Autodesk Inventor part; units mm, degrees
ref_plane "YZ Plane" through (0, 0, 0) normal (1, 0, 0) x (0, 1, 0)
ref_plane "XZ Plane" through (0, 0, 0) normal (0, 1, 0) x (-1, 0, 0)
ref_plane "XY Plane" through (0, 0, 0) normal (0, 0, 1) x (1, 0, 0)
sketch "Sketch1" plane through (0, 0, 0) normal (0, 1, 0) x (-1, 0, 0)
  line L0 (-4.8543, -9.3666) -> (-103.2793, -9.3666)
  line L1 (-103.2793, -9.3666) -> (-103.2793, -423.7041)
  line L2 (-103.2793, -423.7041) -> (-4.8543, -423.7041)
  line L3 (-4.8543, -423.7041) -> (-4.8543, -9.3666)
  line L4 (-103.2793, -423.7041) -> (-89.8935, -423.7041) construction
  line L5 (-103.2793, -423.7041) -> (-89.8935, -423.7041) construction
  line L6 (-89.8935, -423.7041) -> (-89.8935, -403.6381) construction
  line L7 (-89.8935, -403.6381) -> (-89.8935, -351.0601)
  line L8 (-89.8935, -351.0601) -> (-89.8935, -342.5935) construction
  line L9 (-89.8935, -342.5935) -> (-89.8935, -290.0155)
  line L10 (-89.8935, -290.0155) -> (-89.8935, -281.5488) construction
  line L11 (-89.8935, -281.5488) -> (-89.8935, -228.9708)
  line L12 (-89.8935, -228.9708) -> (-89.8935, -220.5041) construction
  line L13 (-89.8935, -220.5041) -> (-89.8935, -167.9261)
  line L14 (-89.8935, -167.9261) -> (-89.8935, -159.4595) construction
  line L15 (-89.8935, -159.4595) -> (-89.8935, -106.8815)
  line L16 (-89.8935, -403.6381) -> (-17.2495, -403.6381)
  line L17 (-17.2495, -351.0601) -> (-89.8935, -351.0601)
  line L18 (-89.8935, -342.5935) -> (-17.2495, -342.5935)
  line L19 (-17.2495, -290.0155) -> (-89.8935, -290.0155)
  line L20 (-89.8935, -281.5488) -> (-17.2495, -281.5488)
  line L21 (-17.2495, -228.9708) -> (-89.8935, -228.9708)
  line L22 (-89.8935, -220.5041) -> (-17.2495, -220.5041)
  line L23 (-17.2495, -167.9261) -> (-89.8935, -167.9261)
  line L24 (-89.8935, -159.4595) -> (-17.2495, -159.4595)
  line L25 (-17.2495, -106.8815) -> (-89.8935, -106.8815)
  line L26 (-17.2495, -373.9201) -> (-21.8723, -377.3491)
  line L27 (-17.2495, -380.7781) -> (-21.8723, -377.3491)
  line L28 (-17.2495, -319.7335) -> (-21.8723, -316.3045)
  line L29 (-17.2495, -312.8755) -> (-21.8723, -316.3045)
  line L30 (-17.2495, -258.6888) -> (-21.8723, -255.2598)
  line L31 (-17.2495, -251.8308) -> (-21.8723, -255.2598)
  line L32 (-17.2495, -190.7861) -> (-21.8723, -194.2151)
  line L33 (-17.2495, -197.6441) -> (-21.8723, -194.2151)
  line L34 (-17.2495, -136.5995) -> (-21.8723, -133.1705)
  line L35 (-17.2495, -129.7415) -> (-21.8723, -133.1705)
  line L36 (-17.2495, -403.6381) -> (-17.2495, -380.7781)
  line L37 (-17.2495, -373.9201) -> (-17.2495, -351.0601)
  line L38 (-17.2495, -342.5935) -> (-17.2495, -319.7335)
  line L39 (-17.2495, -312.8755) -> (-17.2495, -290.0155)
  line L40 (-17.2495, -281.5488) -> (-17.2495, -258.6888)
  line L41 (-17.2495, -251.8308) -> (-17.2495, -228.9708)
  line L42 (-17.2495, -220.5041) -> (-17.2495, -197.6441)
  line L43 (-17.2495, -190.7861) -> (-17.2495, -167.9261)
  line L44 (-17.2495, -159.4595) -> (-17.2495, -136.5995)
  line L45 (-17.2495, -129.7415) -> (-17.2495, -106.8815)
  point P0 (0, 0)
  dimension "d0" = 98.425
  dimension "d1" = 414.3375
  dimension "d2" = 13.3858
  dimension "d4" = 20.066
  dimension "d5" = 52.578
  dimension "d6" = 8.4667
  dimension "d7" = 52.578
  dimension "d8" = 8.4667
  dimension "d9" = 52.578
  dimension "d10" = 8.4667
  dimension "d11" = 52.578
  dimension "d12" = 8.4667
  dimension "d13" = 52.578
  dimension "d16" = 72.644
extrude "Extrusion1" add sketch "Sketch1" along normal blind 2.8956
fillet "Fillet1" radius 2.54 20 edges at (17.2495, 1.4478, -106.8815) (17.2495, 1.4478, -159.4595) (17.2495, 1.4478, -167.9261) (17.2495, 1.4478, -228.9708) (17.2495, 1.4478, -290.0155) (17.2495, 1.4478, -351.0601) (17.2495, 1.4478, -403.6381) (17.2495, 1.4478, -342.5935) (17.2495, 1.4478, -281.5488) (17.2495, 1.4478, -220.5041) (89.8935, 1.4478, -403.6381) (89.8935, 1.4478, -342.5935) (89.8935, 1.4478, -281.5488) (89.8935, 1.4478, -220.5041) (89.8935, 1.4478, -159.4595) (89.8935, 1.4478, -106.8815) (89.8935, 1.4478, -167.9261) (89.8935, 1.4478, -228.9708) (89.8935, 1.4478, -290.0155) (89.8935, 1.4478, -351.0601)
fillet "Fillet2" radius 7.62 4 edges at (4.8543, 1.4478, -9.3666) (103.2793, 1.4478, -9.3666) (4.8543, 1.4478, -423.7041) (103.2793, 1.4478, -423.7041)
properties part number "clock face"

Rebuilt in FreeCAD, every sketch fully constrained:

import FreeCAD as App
import Part
import Sketcher
Q = App.Units.Quantity


def edges_at(feature, points):
    """Names of the edges that pass closest to the given points."""
    edges = feature.Shape.Edges
    near = lambda p: min(range(len(edges)), key=lambda i: edges[i].distToShape(Part.Vertex(*p))[0])
    return sorted({f"Edge{near(p) + 1}" for p in points})


def add_polygon(sketch, points):
    """Adds a closed chain of lines whose ends are joined by coincident constraints."""
    first, n = sketch.GeometryCount, len(points)
    for a, b in zip(points, points[1:] + points[:1]):
        sketch.addGeometry(Part.LineSegment(App.Vector(*a, 0), App.Vector(*b, 0)), False)
    for i in range(n):
        sketch.addConstraint(Sketcher.Constraint("Coincident", first + i, 2, first + (i + 1) % n, 1))

doc = App.newDocument("Part")
params = doc.addObject("Spreadsheet::Sheet", "Params")
for row, (alias, value) in enumerate([
    ("sketch1_width", "2.86 in"),
    ("sketch1_height", "2.07 in"),
    ("sketch1_width2", "3.875 in"),
    ("sketch1_height2", "16.3125 in"),
    ("sketch1_height3", "0.9 in"),
    ("pad1_length", "0.114 in"),
    ("fillet_radius", "0.1 in"),
    ("fillet2_radius", "0.3 in"),
], start=1):
    params.set(f"A{row}", alias)
    params.set(f"B{row}", "=" + value)
    params.setAlias(f"B{row}", alias)

body = doc.addObject("PartDesign::Body", "Body")

# Sketch on XZ plane
sketch1 = body.newObject("Sketcher::SketchObject", "Sketch")
sketch1.AttachmentSupport = (doc.getObject("XZ_Plane"), [""])
sketch1.MapMode = "FlatFace"
add_polygon(sketch1, [(5, -424), (5, -9), (103, -9), (103, -424)])  # lines 0-3
add_polygon(sketch1, [(17, -404), (90, -404), (90, -351), (17, -351), (17, -374), (22, -377), (17, -381)])  # lines 4-10
add_polygon(sketch1, [(17, -343), (90, -343), (90, -290), (17, -290), (17, -313), (22, -316), (17, -320)])  # lines 11-17
add_polygon(sketch1, [(17, -282), (90, -282), (90, -229), (17, -229), (17, -252), (22, -255), (17, -259)])  # lines 18-24
add_polygon(sketch1, [(17, -221), (90, -221), (90, -168), (17, -168), (17, -191), (22, -194), (17, -198)])  # lines 25-31
add_polygon(sketch1, [(17, -159), (90, -159), (90, -107), (17, -107), (17, -130), (22, -133), (17, -137)])  # lines 32-38
sketch1.addConstraint([
    Sketcher.Constraint("Vertical", 0),
    Sketcher.Constraint("Horizontal", 1),
    Sketcher.Constraint("Vertical", 2),
    Sketcher.Constraint("Horizontal", 3),
    Sketcher.Constraint("Horizontal", 4),
    Sketcher.Constraint("Vertical", 5),
    Sketcher.Constraint("Horizontal", 6),
    Sketcher.Constraint("Vertical", 7),
    Sketcher.Constraint("Vertical", 10),
    Sketcher.Constraint("Horizontal", 11),
    Sketcher.Constraint("Vertical", 12),
    Sketcher.Constraint("Horizontal", 13),
    Sketcher.Constraint("Vertical", 14),
    Sketcher.Constraint("Vertical", 17),
    Sketcher.Constraint("Horizontal", 18),
    Sketcher.Constraint("Vertical", 19),
    Sketcher.Constraint("Horizontal", 20),
    Sketcher.Constraint("Vertical", 21),
    Sketcher.Constraint("Vertical", 24),
    Sketcher.Constraint("Horizontal", 25),
    Sketcher.Constraint("Vertical", 26),
    Sketcher.Constraint("Horizontal", 27),
    Sketcher.Constraint("Vertical", 28),
    Sketcher.Constraint("Vertical", 31),
    Sketcher.Constraint("Horizontal", 32),
    Sketcher.Constraint("Vertical", 33),
    Sketcher.Constraint("Horizontal", 34),
    Sketcher.Constraint("Vertical", 35),
    Sketcher.Constraint("Vertical", 38),
    Sketcher.Constraint("Parallel", 8, 15),
    Sketcher.Constraint("Parallel", 9, 16),
    Sketcher.Constraint("Parallel", 15, 22),
    Sketcher.Constraint("Parallel", 16, 23),
    Sketcher.Constraint("Parallel", 22, 29),
    Sketcher.Constraint("Parallel", 23, 30),
    Sketcher.Constraint("Parallel", 29, 36),
    Sketcher.Constraint("Parallel", 30, 37),
    Sketcher.Constraint("Vertical", 7, 2, 9, 2),
    Sketcher.Constraint("Vertical", 5, 2, 11, 2),
    Sketcher.Constraint("Vertical", 10, 2, 13, 2),
    Sketcher.Constraint("Vertical", 8, 2, 15, 2),
    Sketcher.Constraint("Vertical", 14, 2, 16, 2),
    Sketcher.Constraint("Vertical", 12, 2, 18, 2),
    Sketcher.Constraint("Vertical", 17, 2, 20, 2),
    Sketcher.Constraint("Vertical", 15, 2, 22, 2),
    Sketcher.Constraint("Vertical", 21, 2, 23, 2),
    Sketcher.Constraint("Vertical", 19, 2, 25, 2),
    Sketcher.Constraint("Vertical", 24, 2, 27, 2),
    Sketcher.Constraint("Vertical", 22, 2, 29, 2),
    Sketcher.Constraint("Vertical", 28, 2, 30, 2),
    Sketcher.Constraint("Vertical", 26, 2, 32, 2),
    Sketcher.Constraint("Vertical", 31, 2, 34, 2),
    Sketcher.Constraint("Vertical", 29, 2, 36, 2),
    Sketcher.Constraint("Vertical", 35, 2, 37, 2),
    Sketcher.Constraint("Equal", 7, 10),
    Sketcher.Constraint("Equal", 5, 12),
    Sketcher.Constraint("Equal", 10, 14),
    Sketcher.Constraint("Equal", 12, 19),
    Sketcher.Constraint("Equal", 17, 21),
    Sketcher.Constraint("Equal", 19, 26),
    Sketcher.Constraint("Equal", 24, 28),
    Sketcher.Constraint("Equal", 26, 33),
    Sketcher.Constraint("Equal", 31, 35),
    Sketcher.Constraint("Equal", 8, 9),
    Sketcher.Constraint("DistanceX", 4, 1, 4, 2, Q("2.86 in")),
    Sketcher.Constraint("DistanceY", 5, 1, 5, 2, Q("2.07 in")),
    Sketcher.Constraint("DistanceX", 1, 1, 1, 2, Q("3.875 in")),
    Sketcher.Constraint("DistanceY", 0, 1, 0, 2, Q("16.3125 in")),
    Sketcher.Constraint("DistanceY", 2, 2, 4, 2, Q("0.79 in")),
    Sketcher.Constraint("DistanceY", 7, 2, 7, 1, Q("0.9 in")),
    Sketcher.Constraint("DistanceX", 4, 2, 2, 2, Q("0.527 in")),
    Sketcher.Constraint("DistanceX", 3, 2, 8, 2, Q("0.67 in")),
    Sketcher.Constraint("DistanceY", 5, 2, 11, 2, Q("8.4666 mm")),
    Sketcher.Constraint("DistanceY", 12, 2, 18, 2, Q("8.4667 mm")),
    Sketcher.Constraint("DistanceY", 19, 2, 25, 2, Q("8.4667 mm")),
    Sketcher.Constraint("DistanceY", 26, 2, 32, 2, Q("8.4666 mm")),
    Sketcher.Constraint("DistanceY", 18, 2, -1, 1, Q("11.0846 in")),
    Sketcher.Constraint("DistanceX", -1, 1, 0, 2, Q("4.8543 mm")),
])
sketch1.setExpression("Constraints[103]", "Params.sketch1_width")
sketch1.setExpression("Constraints[104]", "Params.sketch1_height")
sketch1.setExpression("Constraints[105]", "Params.sketch1_width2")
sketch1.setExpression("Constraints[106]", "Params.sketch1_height2")
sketch1.setExpression("Constraints[108]", "Params.sketch1_height3")
pad1 = body.newObject("PartDesign::Pad", "Pad")
pad1.Profile = sketch1
pad1.setExpression("Length", "Params.pad1_length")
pad1.Reversed = True
doc.recompute()

fillet = body.newObject("PartDesign::Fillet", "Fillet")
fillet.Base = (pad1, edges_at(pad1, [
    (17.25, 1.448, -106.882),
    (17.25, 1.448, -159.459),
    (17.25, 1.448, -167.926),
    (17.25, 1.448, -228.971),
    (17.25, 1.448, -290.015),
    (17.25, 1.448, -351.06),
    (17.25, 1.448, -403.638),
    (17.25, 1.448, -342.594),
    (17.25, 1.448, -281.549),
    (17.25, 1.448, -220.504),
    (89.894, 1.448, -403.638),
    (89.894, 1.448, -342.594),
    (89.894, 1.448, -281.549),
    (89.894, 1.448, -220.504),
    (89.894, 1.448, -159.459),
    (89.894, 1.448, -106.882),
    (89.894, 1.448, -167.926),
    (89.894, 1.448, -228.971),
    (89.894, 1.448, -290.015),
    (89.894, 1.448, -351.06),
]))
fillet.setExpression("Radius", "Params.fillet_radius")
doc.recompute()

fillet2 = body.newObject("PartDesign::Fillet", "Fillet001")
fillet2.Base = (fillet, edges_at(fillet, [
    (4.854, 1.448, -9.367),
    (103.279, 1.448, -9.367),
    (4.854, 1.448, -423.704),
    (103.279, 1.448, -423.704),
]))
fillet2.setExpression("Radius", "Params.fillet2_radius")

doc.recompute()
